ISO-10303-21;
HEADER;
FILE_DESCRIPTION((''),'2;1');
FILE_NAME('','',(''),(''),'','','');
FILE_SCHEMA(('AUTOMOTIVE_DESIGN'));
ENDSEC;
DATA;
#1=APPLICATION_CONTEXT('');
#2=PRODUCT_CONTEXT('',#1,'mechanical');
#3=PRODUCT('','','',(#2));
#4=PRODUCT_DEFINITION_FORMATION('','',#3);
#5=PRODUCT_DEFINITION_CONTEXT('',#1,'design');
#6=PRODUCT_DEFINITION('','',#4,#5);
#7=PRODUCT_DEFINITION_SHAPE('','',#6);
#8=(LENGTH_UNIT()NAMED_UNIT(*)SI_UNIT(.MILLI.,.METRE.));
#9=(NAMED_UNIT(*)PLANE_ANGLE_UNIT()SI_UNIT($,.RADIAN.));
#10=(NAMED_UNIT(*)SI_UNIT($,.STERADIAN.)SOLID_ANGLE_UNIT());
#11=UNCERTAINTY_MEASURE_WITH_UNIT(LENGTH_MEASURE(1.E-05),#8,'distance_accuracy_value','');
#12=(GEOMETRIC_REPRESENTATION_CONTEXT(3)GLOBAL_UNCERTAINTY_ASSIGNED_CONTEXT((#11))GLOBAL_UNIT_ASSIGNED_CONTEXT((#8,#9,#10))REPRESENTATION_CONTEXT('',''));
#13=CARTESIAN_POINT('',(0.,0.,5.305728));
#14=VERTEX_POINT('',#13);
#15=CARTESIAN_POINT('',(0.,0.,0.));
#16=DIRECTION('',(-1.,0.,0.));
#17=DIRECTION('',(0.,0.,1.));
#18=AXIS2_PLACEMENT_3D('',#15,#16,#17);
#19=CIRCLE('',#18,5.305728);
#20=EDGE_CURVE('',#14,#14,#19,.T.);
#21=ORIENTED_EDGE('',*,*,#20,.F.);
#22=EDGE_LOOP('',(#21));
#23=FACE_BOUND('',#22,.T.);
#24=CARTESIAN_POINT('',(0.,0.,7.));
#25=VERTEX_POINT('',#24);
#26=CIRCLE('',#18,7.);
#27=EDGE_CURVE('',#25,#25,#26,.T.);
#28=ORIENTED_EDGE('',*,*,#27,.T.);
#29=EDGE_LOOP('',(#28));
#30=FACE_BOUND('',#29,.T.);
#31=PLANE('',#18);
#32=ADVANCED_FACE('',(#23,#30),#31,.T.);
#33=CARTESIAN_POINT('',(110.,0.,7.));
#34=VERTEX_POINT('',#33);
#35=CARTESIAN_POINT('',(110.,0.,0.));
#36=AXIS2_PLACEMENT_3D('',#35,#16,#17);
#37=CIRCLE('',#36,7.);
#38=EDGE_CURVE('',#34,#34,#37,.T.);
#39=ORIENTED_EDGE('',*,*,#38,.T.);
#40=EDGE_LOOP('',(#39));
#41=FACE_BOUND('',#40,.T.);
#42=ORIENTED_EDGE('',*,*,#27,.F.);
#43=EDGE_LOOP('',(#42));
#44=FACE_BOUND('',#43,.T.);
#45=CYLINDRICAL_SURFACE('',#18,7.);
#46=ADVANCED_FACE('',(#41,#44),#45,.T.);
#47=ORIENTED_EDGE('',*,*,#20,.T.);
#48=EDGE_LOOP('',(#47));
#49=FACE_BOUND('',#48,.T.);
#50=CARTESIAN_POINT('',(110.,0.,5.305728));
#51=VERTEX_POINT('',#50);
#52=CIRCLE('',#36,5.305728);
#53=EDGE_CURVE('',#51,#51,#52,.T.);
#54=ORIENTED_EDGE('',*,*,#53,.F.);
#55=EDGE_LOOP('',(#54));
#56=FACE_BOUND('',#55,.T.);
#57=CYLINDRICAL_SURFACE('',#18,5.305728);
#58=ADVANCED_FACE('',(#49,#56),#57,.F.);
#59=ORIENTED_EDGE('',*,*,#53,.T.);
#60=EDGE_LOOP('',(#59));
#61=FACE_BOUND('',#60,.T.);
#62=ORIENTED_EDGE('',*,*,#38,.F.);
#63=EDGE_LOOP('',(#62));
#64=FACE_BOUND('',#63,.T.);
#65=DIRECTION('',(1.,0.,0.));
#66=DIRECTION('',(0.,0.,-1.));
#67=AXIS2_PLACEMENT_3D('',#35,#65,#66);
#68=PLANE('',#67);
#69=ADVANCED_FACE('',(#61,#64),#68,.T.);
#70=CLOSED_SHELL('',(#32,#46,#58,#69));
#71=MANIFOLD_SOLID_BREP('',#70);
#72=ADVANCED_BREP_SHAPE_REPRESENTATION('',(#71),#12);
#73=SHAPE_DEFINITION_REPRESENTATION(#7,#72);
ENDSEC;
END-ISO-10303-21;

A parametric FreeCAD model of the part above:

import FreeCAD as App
import Part
import Sketcher
Q = App.Units.Quantity


def add_polygon(sketch, points):
    """Adds a closed chain of lines whose ends are joined by coincident constraints."""
    first, n = sketch.GeometryCount, len(points)
    for a, b in zip(points, points[1:] + points[:1]):
        sketch.addGeometry(Part.LineSegment(App.Vector(*a, 0), App.Vector(*b, 0)), False)
    for i in range(n):
        sketch.addConstraint(Sketcher.Constraint("Coincident", first + i, 2, first + (i + 1) % n, 1))

doc = App.newDocument("Part")
body = doc.addObject("PartDesign::Body", "Body")

sketch1 = body.newObject("Sketcher::SketchObject", "Sketch")
sketch1.AttachmentSupport = (doc.getObject("XY_Plane"), [""])
sketch1.MapMode = "FlatFace"
add_polygon(sketch1, [(0, 7), (0, 5.305728), (110, 5.305728), (110, 7)])
sketch1.addConstraint(Sketcher.Constraint("Vertical", 0))
sketch1.addConstraint(Sketcher.Constraint("Horizontal", 1))
sketch1.addConstraint(Sketcher.Constraint("Vertical", 2))
sketch1.addConstraint(Sketcher.Constraint("Horizontal", 3))
sketch1.addConstraint(Sketcher.Constraint("PointOnObject", 0, 2, -2))
sketch1.addConstraint(Sketcher.Constraint("DistanceX", 1, 1, 1, 2, Q("110 mm")))
sketch1.addConstraint(Sketcher.Constraint("DistanceY", -1, 1, 2, 2, Q("7 mm")))
sketch1.addConstraint(Sketcher.Constraint("DistanceY", 0, 2, 0, 1, Q("1.694272 mm")))
revolution = body.newObject("PartDesign::Revolution", "Revolution")
revolution.Profile = sketch1
revolution.ReferenceAxis = (sketch1, ["H_Axis"])
revolution.Angle = 360

doc.recompute()
